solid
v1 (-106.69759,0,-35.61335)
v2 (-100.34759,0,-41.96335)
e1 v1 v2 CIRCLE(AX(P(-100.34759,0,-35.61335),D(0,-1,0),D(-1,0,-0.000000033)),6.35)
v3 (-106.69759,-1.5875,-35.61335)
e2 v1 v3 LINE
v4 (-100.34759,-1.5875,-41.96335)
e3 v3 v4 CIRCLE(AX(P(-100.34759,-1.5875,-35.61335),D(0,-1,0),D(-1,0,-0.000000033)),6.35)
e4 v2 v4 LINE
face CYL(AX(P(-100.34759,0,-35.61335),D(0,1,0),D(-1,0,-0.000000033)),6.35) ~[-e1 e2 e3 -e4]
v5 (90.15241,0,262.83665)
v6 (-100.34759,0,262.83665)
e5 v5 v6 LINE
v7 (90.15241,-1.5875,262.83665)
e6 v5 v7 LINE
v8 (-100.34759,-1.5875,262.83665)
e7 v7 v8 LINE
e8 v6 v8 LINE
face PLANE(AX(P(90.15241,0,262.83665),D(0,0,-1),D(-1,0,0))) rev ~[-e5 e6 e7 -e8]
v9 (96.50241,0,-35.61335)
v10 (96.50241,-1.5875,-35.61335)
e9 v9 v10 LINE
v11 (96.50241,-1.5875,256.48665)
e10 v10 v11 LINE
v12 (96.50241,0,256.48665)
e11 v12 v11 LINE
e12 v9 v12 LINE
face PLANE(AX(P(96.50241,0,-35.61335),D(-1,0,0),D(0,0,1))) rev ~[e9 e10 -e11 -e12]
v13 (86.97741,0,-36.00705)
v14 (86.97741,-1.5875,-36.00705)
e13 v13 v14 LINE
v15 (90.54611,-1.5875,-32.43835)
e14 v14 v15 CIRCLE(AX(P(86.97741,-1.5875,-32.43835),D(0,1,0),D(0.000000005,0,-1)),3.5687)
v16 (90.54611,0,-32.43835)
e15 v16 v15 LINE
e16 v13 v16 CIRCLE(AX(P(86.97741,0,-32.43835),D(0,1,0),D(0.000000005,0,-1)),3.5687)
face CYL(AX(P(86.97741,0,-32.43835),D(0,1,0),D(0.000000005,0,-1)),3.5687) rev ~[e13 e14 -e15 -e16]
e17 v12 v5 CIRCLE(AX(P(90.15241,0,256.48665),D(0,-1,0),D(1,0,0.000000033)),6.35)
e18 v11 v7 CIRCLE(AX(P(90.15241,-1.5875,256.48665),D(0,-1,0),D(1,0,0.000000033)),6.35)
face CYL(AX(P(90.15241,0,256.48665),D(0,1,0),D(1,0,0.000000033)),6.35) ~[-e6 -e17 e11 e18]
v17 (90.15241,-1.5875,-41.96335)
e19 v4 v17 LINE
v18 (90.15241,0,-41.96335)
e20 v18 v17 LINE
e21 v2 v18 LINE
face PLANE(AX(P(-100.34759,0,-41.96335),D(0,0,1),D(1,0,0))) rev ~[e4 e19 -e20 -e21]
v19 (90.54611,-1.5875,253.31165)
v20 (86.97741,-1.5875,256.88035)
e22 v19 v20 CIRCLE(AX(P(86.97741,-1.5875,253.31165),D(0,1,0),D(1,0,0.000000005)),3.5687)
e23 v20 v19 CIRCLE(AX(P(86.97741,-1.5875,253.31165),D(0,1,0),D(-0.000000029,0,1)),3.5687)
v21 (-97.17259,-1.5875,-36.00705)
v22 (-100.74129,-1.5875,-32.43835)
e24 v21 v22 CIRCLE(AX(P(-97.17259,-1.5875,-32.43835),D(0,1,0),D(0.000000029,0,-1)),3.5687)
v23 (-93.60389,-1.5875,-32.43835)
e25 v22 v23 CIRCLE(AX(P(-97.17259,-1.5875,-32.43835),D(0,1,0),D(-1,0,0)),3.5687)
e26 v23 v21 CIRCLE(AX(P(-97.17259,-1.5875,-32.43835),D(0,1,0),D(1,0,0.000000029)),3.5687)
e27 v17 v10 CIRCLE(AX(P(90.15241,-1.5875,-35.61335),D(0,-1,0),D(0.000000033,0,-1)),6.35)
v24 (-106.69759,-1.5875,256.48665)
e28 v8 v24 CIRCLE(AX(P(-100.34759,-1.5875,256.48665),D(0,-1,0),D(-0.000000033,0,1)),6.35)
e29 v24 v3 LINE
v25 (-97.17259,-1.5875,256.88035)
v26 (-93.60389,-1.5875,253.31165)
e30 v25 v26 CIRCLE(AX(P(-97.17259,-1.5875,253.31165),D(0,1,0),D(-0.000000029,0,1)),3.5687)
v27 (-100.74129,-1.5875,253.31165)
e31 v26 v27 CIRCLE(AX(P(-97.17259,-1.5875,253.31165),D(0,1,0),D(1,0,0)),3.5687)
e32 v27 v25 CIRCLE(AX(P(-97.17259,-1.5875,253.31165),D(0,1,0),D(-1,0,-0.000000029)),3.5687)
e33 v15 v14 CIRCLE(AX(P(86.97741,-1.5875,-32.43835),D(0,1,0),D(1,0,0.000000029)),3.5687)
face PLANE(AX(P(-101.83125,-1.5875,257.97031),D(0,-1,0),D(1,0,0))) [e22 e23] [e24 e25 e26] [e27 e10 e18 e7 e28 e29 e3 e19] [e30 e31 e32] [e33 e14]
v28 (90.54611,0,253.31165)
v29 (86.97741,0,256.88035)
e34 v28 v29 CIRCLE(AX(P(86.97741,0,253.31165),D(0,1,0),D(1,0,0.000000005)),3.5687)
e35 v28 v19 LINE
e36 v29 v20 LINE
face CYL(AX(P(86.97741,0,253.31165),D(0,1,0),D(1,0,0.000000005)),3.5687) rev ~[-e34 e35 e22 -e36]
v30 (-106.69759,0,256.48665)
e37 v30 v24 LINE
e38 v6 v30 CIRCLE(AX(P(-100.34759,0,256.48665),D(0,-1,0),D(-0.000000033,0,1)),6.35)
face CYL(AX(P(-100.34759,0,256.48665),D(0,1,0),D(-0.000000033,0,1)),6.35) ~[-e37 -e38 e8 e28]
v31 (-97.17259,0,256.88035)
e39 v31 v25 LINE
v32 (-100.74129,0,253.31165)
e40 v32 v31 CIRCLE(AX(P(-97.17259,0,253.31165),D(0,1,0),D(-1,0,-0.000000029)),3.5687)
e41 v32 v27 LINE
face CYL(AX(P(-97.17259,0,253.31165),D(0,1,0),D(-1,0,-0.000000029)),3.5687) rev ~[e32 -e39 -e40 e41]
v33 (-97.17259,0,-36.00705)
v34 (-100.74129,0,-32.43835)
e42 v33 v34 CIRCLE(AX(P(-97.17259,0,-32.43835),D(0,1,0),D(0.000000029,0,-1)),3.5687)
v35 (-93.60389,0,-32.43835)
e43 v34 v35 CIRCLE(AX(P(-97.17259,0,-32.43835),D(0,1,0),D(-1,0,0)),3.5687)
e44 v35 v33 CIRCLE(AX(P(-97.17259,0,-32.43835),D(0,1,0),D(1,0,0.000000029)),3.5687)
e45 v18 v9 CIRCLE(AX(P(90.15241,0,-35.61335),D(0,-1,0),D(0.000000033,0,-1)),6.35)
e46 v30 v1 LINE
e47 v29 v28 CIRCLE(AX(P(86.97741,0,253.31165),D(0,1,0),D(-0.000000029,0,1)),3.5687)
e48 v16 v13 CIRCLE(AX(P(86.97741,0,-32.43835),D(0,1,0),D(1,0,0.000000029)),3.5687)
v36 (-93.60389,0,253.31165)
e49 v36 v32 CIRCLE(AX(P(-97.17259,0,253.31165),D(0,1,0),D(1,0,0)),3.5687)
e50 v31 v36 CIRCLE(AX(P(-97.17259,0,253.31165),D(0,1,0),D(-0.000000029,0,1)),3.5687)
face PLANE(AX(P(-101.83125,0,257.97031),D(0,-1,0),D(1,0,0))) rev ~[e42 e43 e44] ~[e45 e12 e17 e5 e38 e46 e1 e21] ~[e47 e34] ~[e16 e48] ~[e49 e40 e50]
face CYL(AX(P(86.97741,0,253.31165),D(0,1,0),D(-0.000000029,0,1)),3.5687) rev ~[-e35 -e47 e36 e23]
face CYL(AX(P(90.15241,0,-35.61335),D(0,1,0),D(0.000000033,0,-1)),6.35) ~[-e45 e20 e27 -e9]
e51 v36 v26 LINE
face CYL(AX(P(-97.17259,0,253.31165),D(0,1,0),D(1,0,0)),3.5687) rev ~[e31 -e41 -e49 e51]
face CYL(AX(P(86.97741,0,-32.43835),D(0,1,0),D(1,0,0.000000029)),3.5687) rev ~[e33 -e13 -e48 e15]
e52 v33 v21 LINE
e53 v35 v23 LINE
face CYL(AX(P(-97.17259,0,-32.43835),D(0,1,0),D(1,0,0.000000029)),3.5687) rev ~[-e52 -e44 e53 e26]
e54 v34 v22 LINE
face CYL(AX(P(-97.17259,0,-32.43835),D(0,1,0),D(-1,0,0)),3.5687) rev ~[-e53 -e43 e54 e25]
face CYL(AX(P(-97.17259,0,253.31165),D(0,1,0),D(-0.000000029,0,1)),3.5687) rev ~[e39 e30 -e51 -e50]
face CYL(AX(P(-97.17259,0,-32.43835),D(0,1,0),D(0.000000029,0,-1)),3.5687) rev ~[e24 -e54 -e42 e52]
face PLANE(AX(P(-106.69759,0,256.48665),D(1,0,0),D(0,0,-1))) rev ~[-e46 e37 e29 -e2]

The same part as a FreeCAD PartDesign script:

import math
import FreeCAD as App
import Part
import Sketcher
Q = App.Units.Quantity

doc = App.newDocument("Part")
params = doc.addObject("Spreadsheet::Sheet", "Params")
for row, (alias, value) in enumerate([
    ("sketch1_radius", "0.25 in"),
    ("sketch1_width", "7.5 in"),
    ("sketch1_height", "11.5 in"),
    ("pad1_length", "0.0625 in"),
], start=1):
    params.set(f"A{row}", alias)
    params.set(f"B{row}", "=" + value)
    params.setAlias(f"B{row}", alias)

body = doc.addObject("PartDesign::Body", "Body")

sketch1 = body.newObject("Sketcher::SketchObject", "Sketch")
sketch1.AttachmentSupport = (doc.getObject("XZ_Plane"), [""])
sketch1.MapMode = "FlatFace"
sketch1.addGeometry(Part.ArcOfCircle(Part.Circle(App.Vector(-100.34759, 256.48665, 0), App.Vector(0, 0, 1), 6.35), math.radians(90.000002), math.radians(179.999998)), False)
sketch1.addGeometry(Part.LineSegment(App.Vector(-106.69759, 256.48665, 0), App.Vector(-106.69759, -35.61335, 0)), False)
sketch1.addGeometry(Part.ArcOfCircle(Part.Circle(App.Vector(-100.34759, -35.61335, 0), App.Vector(0, 0, 1), 6.35), math.radians(-179.999998), math.radians(-90.000002)), False)
sketch1.addGeometry(Part.LineSegment(App.Vector(-100.34759, -41.96335, 0), App.Vector(90.15241, -41.96335, 0)), False)
sketch1.addGeometry(Part.ArcOfCircle(Part.Circle(App.Vector(90.15241, -35.61335, 0), App.Vector(0, 0, 1), 6.35), math.radians(-89.999998), math.radians(-0.000002)), False)
sketch1.addGeometry(Part.LineSegment(App.Vector(96.50241, -35.61335, 0), App.Vector(96.50241, 256.48665, 0)), False)
sketch1.addGeometry(Part.ArcOfCircle(Part.Circle(App.Vector(90.15241, 256.48665, 0), App.Vector(0, 0, 1), 6.35), math.radians(0.000002), math.radians(89.999998)), False)
sketch1.addGeometry(Part.LineSegment(App.Vector(90.15241, 262.83665, 0), App.Vector(-100.34759, 262.83665, 0)), False)
sketch1.addGeometry(Part.ArcOfCircle(Part.Circle(App.Vector(86.97741, -32.43835, 0), App.Vector(0, 0, 1), 3.5687), math.radians(0), math.radians(270)), False)
sketch1.addGeometry(Part.ArcOfCircle(Part.Circle(App.Vector(86.97741, -32.43835, 0), App.Vector(0, 0, 1), 3.5687), math.radians(-90.000002), math.radians(0.000002)), False)
sketch1.addGeometry(Part.ArcOfCircle(Part.Circle(App.Vector(-97.17259, -32.43835, 0), App.Vector(0, 0, 1), 3.5687), math.radians(0), math.radians(180)), False)
sketch1.addGeometry(Part.ArcOfCircle(Part.Circle(App.Vector(-97.17259, -32.43835, 0), App.Vector(0, 0, 1), 3.5687), math.radians(-90.000002), math.radians(0.000002)), False)
sketch1.addGeometry(Part.ArcOfCircle(Part.Circle(App.Vector(-97.17259, -32.43835, 0), App.Vector(0, 0, 1), 3.5687), math.radians(179.999998), math.radians(270.000002)), False)
sketch1.addGeometry(Part.ArcOfCircle(Part.Circle(App.Vector(86.97741, 253.31165, 0), App.Vector(0, 0, 1), 3.5687), math.radians(90), math.radians(360)), False)
sketch1.addGeometry(Part.ArcOfCircle(Part.Circle(App.Vector(86.97741, 253.31165, 0), App.Vector(0, 0, 1), 3.5687), math.radians(-0.000002), math.radians(90.000002)), False)
sketch1.addGeometry(Part.ArcOfCircle(Part.Circle(App.Vector(-97.17259, 253.31165, 0), App.Vector(0, 0, 1), 3.5687), math.radians(89.999998), math.radians(180.000002)), False)
sketch1.addGeometry(Part.ArcOfCircle(Part.Circle(App.Vector(-97.17259, 253.31165, 0), App.Vector(0, 0, 1), 3.5687), math.radians(-0.000002), math.radians(90.000002)), False)
sketch1.addGeometry(Part.ArcOfCircle(Part.Circle(App.Vector(-97.17259, 253.31165, 0), App.Vector(0, 0, 1), 3.5687), math.radians(180), math.radians(360)), False)
sketch1.addConstraint(Sketcher.Constraint("Tangent", 0, 2, 1, 1))
sketch1.addConstraint(Sketcher.Constraint("Tangent", 1, 2, 2, 1))
sketch1.addConstraint(Sketcher.Constraint("Tangent", 2, 2, 3, 1))
sketch1.addConstraint(Sketcher.Constraint("Tangent", 3, 2, 4, 1))
sketch1.addConstraint(Sketcher.Constraint("Tangent", 4, 2, 5, 1))
sketch1.addConstraint(Sketcher.Constraint("Tangent", 5, 2, 6, 1))
sketch1.addConstraint(Sketcher.Constraint("Tangent", 6, 2, 7, 1))
sketch1.addConstraint(Sketcher.Constraint("Tangent", 7, 2, 0, 1))
sketch1.addConstraint(Sketcher.Constraint("Tangent", 8, 1, 9, 2))
sketch1.addConstraint(Sketcher.Constraint("Coincident", 9, 1, 8, 2))
sketch1.addConstraint(Sketcher.Constraint("Tangent", 10, 1, 11, 2))
sketch1.addConstraint(Sketcher.Constraint("Tangent", 11, 1, 12, 2))
sketch1.addConstraint(Sketcher.Constraint("Tangent", 12, 1, 10, 2))
sketch1.addConstraint(Sketcher.Constraint("Tangent", 13, 1, 14, 2))
sketch1.addConstraint(Sketcher.Constraint("Coincident", 14, 1, 13, 2))
sketch1.addConstraint(Sketcher.Constraint("Tangent", 15, 1, 16, 2))
sketch1.addConstraint(Sketcher.Constraint("Tangent", 16, 1, 17, 2))
sketch1.addConstraint(Sketcher.Constraint("Tangent", 17, 1, 15, 2))
sketch1.addConstraint(Sketcher.Constraint("Vertical", 1))
sketch1.addConstraint(Sketcher.Constraint("Horizontal", 3))
sketch1.addConstraint(Sketcher.Constraint("Vertical", 5))
sketch1.addConstraint(Sketcher.Constraint("Horizontal", 7))
sketch1.addConstraint(Sketcher.Constraint("Equal", 0, 2))
sketch1.addConstraint(Sketcher.Constraint("Equal", 2, 4))
sketch1.addConstraint(Sketcher.Constraint("Equal", 4, 6))
sketch1.addConstraint(Sketcher.Constraint("Equal", 9, 10))
sketch1.addConstraint(Sketcher.Constraint("Equal", 12, 13))
sketch1.addConstraint(Sketcher.Constraint("Equal", 14, 15))
sketch1.addConstraint(Sketcher.Constraint("Horizontal", 9, 3, 10, 3))
sketch1.addConstraint(Sketcher.Constraint("Horizontal", 14, 3, 15, 3))
sketch1.addConstraint(Sketcher.Constraint("Horizontal", 12, 3, 8, 1))
sketch1.addConstraint(Sketcher.Constraint("Horizontal", 8, 1, 10, 1))
sketch1.addConstraint(Sketcher.Constraint("Horizontal", 10, 1, 12, 1))
sketch1.addConstraint(Sketcher.Constraint("Horizontal", 17, 3, 14, 1))
sketch1.addConstraint(Sketcher.Constraint("Horizontal", 14, 1, 16, 1))
sketch1.addConstraint(Sketcher.Constraint("Horizontal", 16, 1, 17, 1))
sketch1.addConstraint(Sketcher.Constraint("Vertical", 9, 3, 13, 3))
sketch1.addConstraint(Sketcher.Constraint("Vertical", 12, 3, 15, 3))
sketch1.addConstraint(Sketcher.Constraint("Vertical", 14, 3, 9, 1))
sketch1.addConstraint(Sketcher.Constraint("Vertical", 17, 3, 11, 1))
sketch1.addConstraint(Sketcher.Constraint("Vertical", 9, 1, 13, 1))
sketch1.addConstraint(Sketcher.Constraint("Vertical", 11, 1, 15, 1))
sketch1.addConstraint(Sketcher.Constraint("Radius", 0, Q("0.25 in")))
sketch1.addConstraint(Sketcher.Constraint("DistanceX", 3, 1, 3, 2, Q("7.5 in")))
sketch1.addConstraint(Sketcher.Constraint("DistanceY", 1, 2, 1, 1, Q("11.5 in")))
sketch1.addConstraint(Sketcher.Constraint("Radius", 8, Q("0.1405 in")))
sketch1.addConstraint(Sketcher.Constraint("DistanceX", 10, 3, 8, 3, Q("7.25 in")))
sketch1.addConstraint(Sketcher.Constraint("DistanceY", 8, 3, 13, 3, Q("11.25 in")))
sketch1.addConstraint(Sketcher.Constraint("DistanceX", 8, 3, 4, 3, Q("0.125 in")))
sketch1.addConstraint(Sketcher.Constraint("DistanceY", 4, 3, 8, 3, Q("0.125 in")))
sketch1.addConstraint(Sketcher.Constraint("DistanceX", 0, 3, -1, 1, 100.34759))
sketch1.addConstraint(Sketcher.Constraint("DistanceY", -1, 1, 0, 3, 256.48665))
sketch1.setExpression("Constraints[42]", "Params.sketch1_radius")
sketch1.setExpression("Constraints[43]", "Params.sketch1_width")
sketch1.setExpression("Constraints[44]", "Params.sketch1_height")
pad1 = body.newObject("PartDesign::Pad", "Pad")
pad1.Profile = sketch1
pad1.setExpression("Length", "Params.pad1_length")

doc.recompute()
